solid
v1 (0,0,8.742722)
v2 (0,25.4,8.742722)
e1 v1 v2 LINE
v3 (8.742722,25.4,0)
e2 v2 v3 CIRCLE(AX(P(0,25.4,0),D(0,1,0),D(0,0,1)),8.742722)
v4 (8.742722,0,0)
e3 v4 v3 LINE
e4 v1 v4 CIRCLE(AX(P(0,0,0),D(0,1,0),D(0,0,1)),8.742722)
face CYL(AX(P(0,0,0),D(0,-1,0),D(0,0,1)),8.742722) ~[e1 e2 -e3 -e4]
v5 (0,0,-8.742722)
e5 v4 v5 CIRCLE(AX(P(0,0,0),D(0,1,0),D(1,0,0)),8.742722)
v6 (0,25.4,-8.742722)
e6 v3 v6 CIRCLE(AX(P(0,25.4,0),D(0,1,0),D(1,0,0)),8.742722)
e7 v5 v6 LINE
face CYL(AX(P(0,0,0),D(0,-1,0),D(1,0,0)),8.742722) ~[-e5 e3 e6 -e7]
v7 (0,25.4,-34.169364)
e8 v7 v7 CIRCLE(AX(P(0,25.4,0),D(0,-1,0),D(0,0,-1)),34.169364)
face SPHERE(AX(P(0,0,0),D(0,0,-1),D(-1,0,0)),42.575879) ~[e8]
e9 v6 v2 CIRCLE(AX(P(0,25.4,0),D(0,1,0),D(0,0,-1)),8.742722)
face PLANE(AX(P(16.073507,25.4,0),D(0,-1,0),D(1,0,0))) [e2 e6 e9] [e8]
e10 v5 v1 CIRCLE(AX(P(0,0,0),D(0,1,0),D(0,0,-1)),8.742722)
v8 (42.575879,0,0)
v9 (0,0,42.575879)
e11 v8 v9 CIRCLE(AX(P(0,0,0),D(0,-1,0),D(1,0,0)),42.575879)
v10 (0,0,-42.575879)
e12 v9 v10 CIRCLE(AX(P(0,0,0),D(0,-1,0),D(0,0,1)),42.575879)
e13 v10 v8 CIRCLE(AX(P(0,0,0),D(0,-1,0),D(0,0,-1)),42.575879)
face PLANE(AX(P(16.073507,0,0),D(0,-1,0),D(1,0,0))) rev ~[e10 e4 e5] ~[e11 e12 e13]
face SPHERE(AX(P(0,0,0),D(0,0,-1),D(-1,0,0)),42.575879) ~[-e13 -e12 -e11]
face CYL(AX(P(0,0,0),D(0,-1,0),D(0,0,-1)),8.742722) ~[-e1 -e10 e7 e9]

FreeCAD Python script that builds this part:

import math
import FreeCAD as App
import Part
import Sketcher
Q = App.Units.Quantity

doc = App.newDocument("Part")
params = doc.addObject("Spreadsheet::Sheet", "Params")
for row, (alias, value) in enumerate([
    ("revolution_angle", "360 deg"),
    ("pocket1_length", "1 in"),
], start=1):
    params.set(f"A{row}", alias)
    params.set(f"B{row}", "=" + value)
    params.setAlias(f"B{row}", alias)

body = doc.addObject("PartDesign::Body", "Body")

sketch1 = body.newObject("Sketcher::SketchObject", "Sketch")
sketch1.AttachmentSupport = (doc.getObject("XZ_Plane"), [""])
sketch1.MapMode = "FlatFace"
sketch1.addGeometry([
    Part.ArcOfCircle(Part.Circle(App.Vector(0, 0, 0), App.Vector(0, 0, 1), 43), math.radians(90), math.radians(270)),
    Part.LineSegment(App.Vector(0, -43, 0), App.Vector(0, 43, 0)),
], False)
sketch1.addConstraint([
    Sketcher.Constraint("Coincident", 0, 1, 1, 2),
    Sketcher.Constraint("Coincident", 1, 1, 0, 2),
    Sketcher.Constraint("Vertical", 1),
    Sketcher.Constraint("Coincident", 0, 3, -1, 1),
    Sketcher.Constraint("PointOnObject", 0, 1, -2),
    Sketcher.Constraint("Radius", 0, Q("42.575879 mm")),
])
revolution = body.newObject("PartDesign::Revolution", "Revolution")
revolution.Profile = sketch1
revolution.ReferenceAxis = (sketch1, ["V_Axis"])
revolution.setExpression("Angle", "Params.revolution_angle")

sketch2 = body.newObject("Sketcher::SketchObject", "Sketch001")
sketch2.AttachmentSupport = (doc.getObject("XZ_Plane"), [""])
sketch2.MapMode = "FlatFace"
sketch2.addGeometry([
    Part.ArcOfCircle(Part.Circle(App.Vector(0, 0, 0), App.Vector(0, 0, 1), 43), math.radians(-90), math.radians(0)),
    Part.ArcOfCircle(Part.Circle(App.Vector(0, 0, 0), App.Vector(0, 0, 1), 43), math.radians(0), math.radians(90)),
    Part.ArcOfCircle(Part.Circle(App.Vector(0, 0, 0), App.Vector(0, 0, 1), 43), math.radians(90), math.radians(270)),
    Part.ArcOfCircle(Part.Circle(App.Vector(0, 0, 0), App.Vector(0, 0, 1), 9), math.radians(0), math.radians(90)),
    Part.ArcOfCircle(Part.Circle(App.Vector(0, 0, 0), App.Vector(0, 0, 1), 9), math.radians(-90), math.radians(0)),
    Part.ArcOfCircle(Part.Circle(App.Vector(0, 0, 0), App.Vector(0, 0, 1), 9), math.radians(90), math.radians(270)),
], False)
sketch2.addConstraint([
    Sketcher.Constraint("Tangent", 0, 2, 1, 1),
    Sketcher.Constraint("Tangent", 1, 2, 2, 1),
    Sketcher.Constraint("Tangent", 2, 2, 0, 1),
    Sketcher.Constraint("Tangent", 3, 1, 4, 2),
    Sketcher.Constraint("Tangent", 4, 1, 5, 2),
    Sketcher.Constraint("Tangent", 5, 1, 3, 2),
    Sketcher.Constraint("Coincident", 0, 3, -1, 1),
    Sketcher.Constraint("Coincident", 3, 3, -1, 1),
    Sketcher.Constraint("PointOnObject", 0, 2, -1),
    Sketcher.Constraint("PointOnObject", 1, 2, -2),
    Sketcher.Constraint("PointOnObject", 2, 2, -2),
    Sketcher.Constraint("PointOnObject", 3, 1, -1),
    Sketcher.Constraint("PointOnObject", 4, 1, -2),
    Sketcher.Constraint("PointOnObject", 5, 1, -2),
    Sketcher.Constraint("Radius", 0, Q("42.575879 mm")),
    Sketcher.Constraint("Radius", 3, Q("8.742722 mm")),
])
pocket1 = body.newObject("PartDesign::Pocket", "Pocket")
pocket1.Profile = sketch2
pocket1.setExpression("Length", "Params.pocket1_length")

doc.recompute()
